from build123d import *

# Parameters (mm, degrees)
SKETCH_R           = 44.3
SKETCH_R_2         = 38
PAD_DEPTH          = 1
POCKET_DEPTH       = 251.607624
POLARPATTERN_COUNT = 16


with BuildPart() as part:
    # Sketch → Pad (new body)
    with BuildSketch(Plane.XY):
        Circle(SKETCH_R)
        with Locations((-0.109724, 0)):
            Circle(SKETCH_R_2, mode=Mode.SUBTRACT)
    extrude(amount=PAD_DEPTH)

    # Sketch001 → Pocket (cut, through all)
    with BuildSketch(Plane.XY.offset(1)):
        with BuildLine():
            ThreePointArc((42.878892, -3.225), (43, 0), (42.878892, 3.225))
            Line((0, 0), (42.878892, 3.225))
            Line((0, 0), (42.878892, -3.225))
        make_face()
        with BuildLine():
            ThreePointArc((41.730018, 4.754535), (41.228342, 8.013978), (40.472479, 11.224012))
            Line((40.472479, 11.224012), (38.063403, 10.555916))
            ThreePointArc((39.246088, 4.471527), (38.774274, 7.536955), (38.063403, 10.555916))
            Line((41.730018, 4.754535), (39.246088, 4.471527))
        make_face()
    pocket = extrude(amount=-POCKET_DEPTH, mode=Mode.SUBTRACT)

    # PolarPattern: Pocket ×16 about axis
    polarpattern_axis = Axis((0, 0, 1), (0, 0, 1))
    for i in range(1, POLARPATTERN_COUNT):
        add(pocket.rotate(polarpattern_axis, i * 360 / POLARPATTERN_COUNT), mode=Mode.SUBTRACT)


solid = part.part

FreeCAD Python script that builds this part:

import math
import FreeCAD as App
import Part
import Sketcher
Q = App.Units.Quantity

doc = App.newDocument("Part")
body = doc.addObject("PartDesign::Body", "Body")

sketch1 = body.newObject("Sketcher::SketchObject", "Sketch")
sketch1.AttachmentSupport = (doc.getObject("XY_Plane"), [""])
sketch1.MapMode = "FlatFace"
sketch1.addGeometry(Part.Circle(App.Vector(0, 0, 0), App.Vector(0, 0, 1), 44.3), False)
sketch1.addGeometry(Part.Circle(App.Vector(-0.109724, 0, 0), App.Vector(0, 0, 1), 38), False)
sketch1.addConstraint(Sketcher.Constraint("Coincident", 0, 3, -1, 1))
sketch1.addConstraint(Sketcher.Constraint("PointOnObject", 1, 3, -1))
sketch1.addConstraint(Sketcher.Constraint("Diameter", 1, 76.0))
sketch1.addConstraint(Sketcher.Constraint("Diameter", 0, 88.6))
sketch1.addConstraint(Sketcher.Constraint("DistanceX", 1, 3, -1, 1, 0.109724))
pad1 = body.newObject("PartDesign::Pad", "Pad")
pad1.Profile = sketch1
pad1.Length = 1

sketch2 = body.newObject("Sketcher::SketchObject", "Sketch001")
sketch2.AttachmentSupport = (doc.getObject("XY_Plane"), [""])
sketch2.MapMode = "FlatFace"
sketch2.AttachmentOffset = App.Placement(App.Vector(0, 0, 1), App.Rotation())
sketch2.addGeometry(Part.ArcOfCircle(Part.Circle(App.Vector(-0.000017, 0, 0), App.Vector(0, 0, 1), 43.000017), math.radians(-4.301221), math.radians(4.301221)), False)
sketch2.addGeometry(Part.LineSegment(App.Vector(42.878892, 3.225, 0), App.Vector(0, 0, 0)), False)
sketch2.addGeometry(Part.LineSegment(App.Vector(0, 0, 0), App.Vector(42.878892, -3.225, 0)), False)
sketch2.addGeometry(Part.ArcOfCircle(Part.Circle(App.Vector(0.000091, 0.000017, 0), App.Vector(0, 0, 1), 41.999908), math.radians(6.499991), math.radians(15.500011)), False)
sketch2.addGeometry(Part.LineSegment(App.Vector(40.472479, 11.224012, 0), App.Vector(38.063403, 10.555916, 0)), False)
sketch2.addGeometry(Part.ArcOfCircle(Part.Circle(App.Vector(0.000085, 0.000019, 0), App.Vector(0, 0, 1), 39.499913), math.radians(6.499986), math.radians(15.500006)), False)
sketch2.addGeometry(Part.LineSegment(App.Vector(39.246088, 4.471527, 0), App.Vector(41.730018, 4.754535, 0)), False)
sketch2.addConstraint(Sketcher.Constraint("Coincident", 0, 2, 1, 1))
sketch2.addConstraint(Sketcher.Constraint("Coincident", 1, 2, 2, 1))
sketch2.addConstraint(Sketcher.Constraint("Coincident", 2, 2, 0, 1))
sketch2.addConstraint(Sketcher.Constraint("Coincident", 3, 2, 4, 1))
sketch2.addConstraint(Sketcher.Constraint("Coincident", 4, 2, 5, 2))
sketch2.addConstraint(Sketcher.Constraint("Coincident", 5, 1, 6, 1))
sketch2.addConstraint(Sketcher.Constraint("Coincident", 6, 2, 3, 1))
sketch2.addConstraint(Sketcher.Constraint("Coincident", 1, 2, -1, 1))
sketch2.addConstraint(Sketcher.Constraint("Coincident", 5, 3, 3, 3))
sketch2.addConstraint(Sketcher.Constraint("Symmetric", 0, 2, 2, 2, -1))
sketch2.addConstraint(Sketcher.Constraint("Distance", 1, 43.0))
sketch2.addConstraint(Sketcher.Constraint("Angle", 4, Q("-164.499998 deg")))
sketch2.addConstraint(Sketcher.Constraint("Angle", 6, Q("6.499998 deg")))
sketch2.addConstraint(Sketcher.Constraint("Distance", 4, 2.5))
sketch2.addConstraint(Sketcher.Constraint("Radius", 3, 41.999908))
sketch2.addConstraint(Sketcher.Constraint("DistanceY", 2, 2, 0, 2, 6.45))
sketch2.addConstraint(Sketcher.Constraint("Radius", 0, 43.000017))
sketch2.addConstraint(Sketcher.Constraint("DistanceX", 0, 3, 5, 3, 0.000102))
sketch2.addConstraint(Sketcher.Constraint("DistanceY", 3, 3, 4, 2, 10.555899))
sketch2.addConstraint(Sketcher.Constraint("DistanceY", -1, 1, 3, 2, 11.224012))
sketch2.addConstraint(Sketcher.Constraint("DistanceY", 5, 1, 4, 2, 6.084389))
pocket1 = body.newObject("PartDesign::Pocket", "Pocket")
pocket1.Profile = sketch2
pocket1.Type = "ThroughAll"
doc.recompute()

polarpattern = body.newObject("PartDesign::PolarPattern", "PolarPattern")
polarpattern.Originals = [pocket1]
polarpattern.Axis = (doc.getObject("Z_Axis"), [""])
polarpattern.Angle = 360
polarpattern.Occurrences = 16
body.Tip = polarpattern

doc.recompute()
